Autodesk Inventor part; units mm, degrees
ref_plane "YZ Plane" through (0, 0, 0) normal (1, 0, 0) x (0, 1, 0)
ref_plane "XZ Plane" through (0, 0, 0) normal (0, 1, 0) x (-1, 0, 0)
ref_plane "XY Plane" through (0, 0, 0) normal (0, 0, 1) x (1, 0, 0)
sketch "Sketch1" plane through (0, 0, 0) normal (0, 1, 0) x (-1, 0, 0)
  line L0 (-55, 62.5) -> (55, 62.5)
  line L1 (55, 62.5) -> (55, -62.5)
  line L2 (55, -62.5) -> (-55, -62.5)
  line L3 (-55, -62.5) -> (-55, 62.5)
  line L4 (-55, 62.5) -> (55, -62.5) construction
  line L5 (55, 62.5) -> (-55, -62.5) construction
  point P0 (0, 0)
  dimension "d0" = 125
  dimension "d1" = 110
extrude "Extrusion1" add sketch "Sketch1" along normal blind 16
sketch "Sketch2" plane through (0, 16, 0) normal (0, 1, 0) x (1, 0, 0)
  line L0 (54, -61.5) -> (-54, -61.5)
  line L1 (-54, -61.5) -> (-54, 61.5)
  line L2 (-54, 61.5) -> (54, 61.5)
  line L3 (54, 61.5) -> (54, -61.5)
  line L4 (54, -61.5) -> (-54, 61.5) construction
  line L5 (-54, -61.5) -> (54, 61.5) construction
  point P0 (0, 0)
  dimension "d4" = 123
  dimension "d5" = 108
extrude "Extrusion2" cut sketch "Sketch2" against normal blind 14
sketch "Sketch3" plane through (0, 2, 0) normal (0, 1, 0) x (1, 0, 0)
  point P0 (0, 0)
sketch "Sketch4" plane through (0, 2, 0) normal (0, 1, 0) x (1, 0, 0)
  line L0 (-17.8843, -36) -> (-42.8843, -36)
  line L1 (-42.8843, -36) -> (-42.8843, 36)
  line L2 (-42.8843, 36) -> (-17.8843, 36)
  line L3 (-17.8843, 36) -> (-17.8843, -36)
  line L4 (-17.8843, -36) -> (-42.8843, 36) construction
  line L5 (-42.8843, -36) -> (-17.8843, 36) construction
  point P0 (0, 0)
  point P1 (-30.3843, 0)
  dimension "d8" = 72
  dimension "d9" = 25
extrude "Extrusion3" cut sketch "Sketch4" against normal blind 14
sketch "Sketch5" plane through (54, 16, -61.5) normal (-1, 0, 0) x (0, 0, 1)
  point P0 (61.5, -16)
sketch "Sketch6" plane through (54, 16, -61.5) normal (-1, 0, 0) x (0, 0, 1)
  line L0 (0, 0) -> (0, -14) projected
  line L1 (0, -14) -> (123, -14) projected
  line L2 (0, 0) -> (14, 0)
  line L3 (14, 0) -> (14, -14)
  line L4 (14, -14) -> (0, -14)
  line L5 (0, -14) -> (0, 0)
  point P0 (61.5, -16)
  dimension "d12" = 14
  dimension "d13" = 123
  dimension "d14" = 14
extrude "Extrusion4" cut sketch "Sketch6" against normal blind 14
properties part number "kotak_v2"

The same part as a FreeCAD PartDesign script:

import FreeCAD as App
import Part
import Sketcher
from FreeCAD import Vector
Q = App.Units.Quantity

doc = App.newDocument("Part")
body = doc.addObject("PartDesign::Body", "Body")

sketch1 = doc.addObject("Sketcher::SketchObject", "Sketch")
body.addObject(sketch1)
sketch1.AttachmentSupport = (doc.XZ_Plane, [""])
sketch1.MapMode = "FlatFace"
sketch1.addGeometry([
    Part.LineSegment(Vector(-55, 62, 0), Vector(55, 62, 0)),
    Part.LineSegment(Vector(55, 62, 0), Vector(55, -62, 0)),
    Part.LineSegment(Vector(55, -62, 0), Vector(-55, -62, 0)),
    Part.LineSegment(Vector(-55, -62, 0), Vector(-55, 62, 0)),
], False)
sketch1.addConstraint([
    Sketcher.Constraint("Coincident", 0, 2, 1, 1),
    Sketcher.Constraint("Coincident", 1, 2, 2, 1),
    Sketcher.Constraint("Coincident", 2, 2, 3, 1),
    Sketcher.Constraint("Coincident", 3, 2, 0, 1),
    Sketcher.Constraint("Horizontal", 0),
    Sketcher.Constraint("Vertical", 1),
    Sketcher.Constraint("Horizontal", 2),
    Sketcher.Constraint("Vertical", 3),
    Sketcher.Constraint("Symmetric", 0, 2, 2, 2, -1, 1),
    Sketcher.Constraint("DistanceX", 0, 1, 0, 2, Q("110 mm")),
    Sketcher.Constraint("DistanceY", 1, 2, 1, 1, Q("125 mm")),
])
pad1 = doc.addObject("PartDesign::Pad", "Pad")
body.addObject(pad1)
pad1.Profile = sketch1
pad1.Length = 16
pad1.Reversed = True

sketch2 = doc.addObject("Sketcher::SketchObject", "Sketch001")
body.addObject(sketch2)
sketch2.AttachmentSupport = (doc.XZ_Plane, [""])
sketch2.MapMode = "FlatFace"
sketch2.AttachmentOffset = App.Placement(Vector(0, 0, -16), App.Rotation())
sketch2.addGeometry([
    Part.LineSegment(Vector(-54, 62, 0), Vector(54, 62, 0)),
    Part.LineSegment(Vector(54, 62, 0), Vector(54, -62, 0)),
    Part.LineSegment(Vector(54, -62, 0), Vector(-54, -62, 0)),
    Part.LineSegment(Vector(-54, -62, 0), Vector(-54, 62, 0)),
], False)
sketch2.addConstraint([
    Sketcher.Constraint("Coincident", 0, 2, 1, 1),
    Sketcher.Constraint("Coincident", 1, 2, 2, 1),
    Sketcher.Constraint("Coincident", 2, 2, 3, 1),
    Sketcher.Constraint("Coincident", 3, 2, 0, 1),
    Sketcher.Constraint("Horizontal", 0),
    Sketcher.Constraint("Vertical", 1),
    Sketcher.Constraint("Horizontal", 2),
    Sketcher.Constraint("Vertical", 3),
    Sketcher.Constraint("Symmetric", 0, 2, 2, 2, -1, 1),
    Sketcher.Constraint("DistanceX", 0, 1, 0, 2, Q("108 mm")),
    Sketcher.Constraint("DistanceY", 1, 2, 1, 1, Q("123 mm")),
])
pocket1 = doc.addObject("PartDesign::Pocket", "Pocket")
body.addObject(pocket1)
pocket1.Profile = sketch2
pocket1.Length = 14
pocket1.Reversed = True

sketch3 = doc.addObject("Sketcher::SketchObject", "Sketch002")
body.addObject(sketch3)
sketch3.AttachmentSupport = (doc.XZ_Plane, [""])
sketch3.MapMode = "FlatFace"
sketch3.AttachmentOffset = App.Placement(Vector(0, 0, -2), App.Rotation())
sketch3.addGeometry([
    Part.LineSegment(Vector(-43, 36, 0), Vector(-18, 36, 0)),
    Part.LineSegment(Vector(-18, 36, 0), Vector(-18, -36, 0)),
    Part.LineSegment(Vector(-18, -36, 0), Vector(-43, -36, 0)),
    Part.LineSegment(Vector(-43, -36, 0), Vector(-43, 36, 0)),
], False)
sketch3.addConstraint([
    Sketcher.Constraint("Coincident", 0, 2, 1, 1),
    Sketcher.Constraint("Coincident", 1, 2, 2, 1),
    Sketcher.Constraint("Coincident", 2, 2, 3, 1),
    Sketcher.Constraint("Coincident", 3, 2, 0, 1),
    Sketcher.Constraint("Horizontal", 0),
    Sketcher.Constraint("Vertical", 1),
    Sketcher.Constraint("Horizontal", 2),
    Sketcher.Constraint("Vertical", 3),
    Sketcher.Constraint("DistanceX", 0, 1, 0, 2, Q("25 mm")),
    Sketcher.Constraint("DistanceY", 1, 2, 1, 1, Q("72 mm")),
    Sketcher.Constraint("DistanceY", -1, 1, 0, 2, Q("36 mm")),
    Sketcher.Constraint("DistanceX", 0, 2, -1, 1, Q("17.8843 mm")),
])
pocket2 = doc.addObject("PartDesign::Pocket", "Pocket001")
body.addObject(pocket2)
pocket2.Profile = sketch3
pocket2.Length = 14
pocket2.Reversed = True

sketch4 = doc.addObject("Sketcher::SketchObject", "Sketch003")
body.addObject(sketch4)
sketch4.AttachmentSupport = (doc.YZ_Plane, [""])
sketch4.MapMode = "FlatFace"
sketch4.AttachmentOffset = App.Placement(Vector(0, 0, 54), App.Rotation())
sketch4.addGeometry([
    Part.LineSegment(Vector(16, -48, 0), Vector(16, -62, 0)),
    Part.LineSegment(Vector(16, -62, 0), Vector(2, -62, 0)),
    Part.LineSegment(Vector(2, -62, 0), Vector(2, -48, 0)),
    Part.LineSegment(Vector(2, -48, 0), Vector(16, -48, 0)),
], False)
sketch4.addConstraint([
    Sketcher.Constraint("Coincident", 0, 2, 1, 1),
    Sketcher.Constraint("Coincident", 1, 2, 2, 1),
    Sketcher.Constraint("Coincident", 2, 2, 3, 1),
    Sketcher.Constraint("Coincident", 3, 2, 0, 1),
    Sketcher.Constraint("Vertical", 0),
    Sketcher.Constraint("Horizontal", 1),
    Sketcher.Constraint("Vertical", 2),
    Sketcher.Constraint("Horizontal", 3),
    Sketcher.Constraint("Equal", 3, 0),
    Sketcher.Constraint("DistanceX", 1, 2, 1, 1, Q("14 mm")),
    Sketcher.Constraint("DistanceX", -1, 1, 0, 2, Q("16 mm")),
    Sketcher.Constraint("DistanceY", 0, 2, -1, 1, Q("61.5 mm")),
])
pocket3 = doc.addObject("PartDesign::Pocket", "Pocket002")
body.addObject(pocket3)
pocket3.Profile = sketch4
pocket3.Length = 14
pocket3.Reversed = True

doc.recompute()
